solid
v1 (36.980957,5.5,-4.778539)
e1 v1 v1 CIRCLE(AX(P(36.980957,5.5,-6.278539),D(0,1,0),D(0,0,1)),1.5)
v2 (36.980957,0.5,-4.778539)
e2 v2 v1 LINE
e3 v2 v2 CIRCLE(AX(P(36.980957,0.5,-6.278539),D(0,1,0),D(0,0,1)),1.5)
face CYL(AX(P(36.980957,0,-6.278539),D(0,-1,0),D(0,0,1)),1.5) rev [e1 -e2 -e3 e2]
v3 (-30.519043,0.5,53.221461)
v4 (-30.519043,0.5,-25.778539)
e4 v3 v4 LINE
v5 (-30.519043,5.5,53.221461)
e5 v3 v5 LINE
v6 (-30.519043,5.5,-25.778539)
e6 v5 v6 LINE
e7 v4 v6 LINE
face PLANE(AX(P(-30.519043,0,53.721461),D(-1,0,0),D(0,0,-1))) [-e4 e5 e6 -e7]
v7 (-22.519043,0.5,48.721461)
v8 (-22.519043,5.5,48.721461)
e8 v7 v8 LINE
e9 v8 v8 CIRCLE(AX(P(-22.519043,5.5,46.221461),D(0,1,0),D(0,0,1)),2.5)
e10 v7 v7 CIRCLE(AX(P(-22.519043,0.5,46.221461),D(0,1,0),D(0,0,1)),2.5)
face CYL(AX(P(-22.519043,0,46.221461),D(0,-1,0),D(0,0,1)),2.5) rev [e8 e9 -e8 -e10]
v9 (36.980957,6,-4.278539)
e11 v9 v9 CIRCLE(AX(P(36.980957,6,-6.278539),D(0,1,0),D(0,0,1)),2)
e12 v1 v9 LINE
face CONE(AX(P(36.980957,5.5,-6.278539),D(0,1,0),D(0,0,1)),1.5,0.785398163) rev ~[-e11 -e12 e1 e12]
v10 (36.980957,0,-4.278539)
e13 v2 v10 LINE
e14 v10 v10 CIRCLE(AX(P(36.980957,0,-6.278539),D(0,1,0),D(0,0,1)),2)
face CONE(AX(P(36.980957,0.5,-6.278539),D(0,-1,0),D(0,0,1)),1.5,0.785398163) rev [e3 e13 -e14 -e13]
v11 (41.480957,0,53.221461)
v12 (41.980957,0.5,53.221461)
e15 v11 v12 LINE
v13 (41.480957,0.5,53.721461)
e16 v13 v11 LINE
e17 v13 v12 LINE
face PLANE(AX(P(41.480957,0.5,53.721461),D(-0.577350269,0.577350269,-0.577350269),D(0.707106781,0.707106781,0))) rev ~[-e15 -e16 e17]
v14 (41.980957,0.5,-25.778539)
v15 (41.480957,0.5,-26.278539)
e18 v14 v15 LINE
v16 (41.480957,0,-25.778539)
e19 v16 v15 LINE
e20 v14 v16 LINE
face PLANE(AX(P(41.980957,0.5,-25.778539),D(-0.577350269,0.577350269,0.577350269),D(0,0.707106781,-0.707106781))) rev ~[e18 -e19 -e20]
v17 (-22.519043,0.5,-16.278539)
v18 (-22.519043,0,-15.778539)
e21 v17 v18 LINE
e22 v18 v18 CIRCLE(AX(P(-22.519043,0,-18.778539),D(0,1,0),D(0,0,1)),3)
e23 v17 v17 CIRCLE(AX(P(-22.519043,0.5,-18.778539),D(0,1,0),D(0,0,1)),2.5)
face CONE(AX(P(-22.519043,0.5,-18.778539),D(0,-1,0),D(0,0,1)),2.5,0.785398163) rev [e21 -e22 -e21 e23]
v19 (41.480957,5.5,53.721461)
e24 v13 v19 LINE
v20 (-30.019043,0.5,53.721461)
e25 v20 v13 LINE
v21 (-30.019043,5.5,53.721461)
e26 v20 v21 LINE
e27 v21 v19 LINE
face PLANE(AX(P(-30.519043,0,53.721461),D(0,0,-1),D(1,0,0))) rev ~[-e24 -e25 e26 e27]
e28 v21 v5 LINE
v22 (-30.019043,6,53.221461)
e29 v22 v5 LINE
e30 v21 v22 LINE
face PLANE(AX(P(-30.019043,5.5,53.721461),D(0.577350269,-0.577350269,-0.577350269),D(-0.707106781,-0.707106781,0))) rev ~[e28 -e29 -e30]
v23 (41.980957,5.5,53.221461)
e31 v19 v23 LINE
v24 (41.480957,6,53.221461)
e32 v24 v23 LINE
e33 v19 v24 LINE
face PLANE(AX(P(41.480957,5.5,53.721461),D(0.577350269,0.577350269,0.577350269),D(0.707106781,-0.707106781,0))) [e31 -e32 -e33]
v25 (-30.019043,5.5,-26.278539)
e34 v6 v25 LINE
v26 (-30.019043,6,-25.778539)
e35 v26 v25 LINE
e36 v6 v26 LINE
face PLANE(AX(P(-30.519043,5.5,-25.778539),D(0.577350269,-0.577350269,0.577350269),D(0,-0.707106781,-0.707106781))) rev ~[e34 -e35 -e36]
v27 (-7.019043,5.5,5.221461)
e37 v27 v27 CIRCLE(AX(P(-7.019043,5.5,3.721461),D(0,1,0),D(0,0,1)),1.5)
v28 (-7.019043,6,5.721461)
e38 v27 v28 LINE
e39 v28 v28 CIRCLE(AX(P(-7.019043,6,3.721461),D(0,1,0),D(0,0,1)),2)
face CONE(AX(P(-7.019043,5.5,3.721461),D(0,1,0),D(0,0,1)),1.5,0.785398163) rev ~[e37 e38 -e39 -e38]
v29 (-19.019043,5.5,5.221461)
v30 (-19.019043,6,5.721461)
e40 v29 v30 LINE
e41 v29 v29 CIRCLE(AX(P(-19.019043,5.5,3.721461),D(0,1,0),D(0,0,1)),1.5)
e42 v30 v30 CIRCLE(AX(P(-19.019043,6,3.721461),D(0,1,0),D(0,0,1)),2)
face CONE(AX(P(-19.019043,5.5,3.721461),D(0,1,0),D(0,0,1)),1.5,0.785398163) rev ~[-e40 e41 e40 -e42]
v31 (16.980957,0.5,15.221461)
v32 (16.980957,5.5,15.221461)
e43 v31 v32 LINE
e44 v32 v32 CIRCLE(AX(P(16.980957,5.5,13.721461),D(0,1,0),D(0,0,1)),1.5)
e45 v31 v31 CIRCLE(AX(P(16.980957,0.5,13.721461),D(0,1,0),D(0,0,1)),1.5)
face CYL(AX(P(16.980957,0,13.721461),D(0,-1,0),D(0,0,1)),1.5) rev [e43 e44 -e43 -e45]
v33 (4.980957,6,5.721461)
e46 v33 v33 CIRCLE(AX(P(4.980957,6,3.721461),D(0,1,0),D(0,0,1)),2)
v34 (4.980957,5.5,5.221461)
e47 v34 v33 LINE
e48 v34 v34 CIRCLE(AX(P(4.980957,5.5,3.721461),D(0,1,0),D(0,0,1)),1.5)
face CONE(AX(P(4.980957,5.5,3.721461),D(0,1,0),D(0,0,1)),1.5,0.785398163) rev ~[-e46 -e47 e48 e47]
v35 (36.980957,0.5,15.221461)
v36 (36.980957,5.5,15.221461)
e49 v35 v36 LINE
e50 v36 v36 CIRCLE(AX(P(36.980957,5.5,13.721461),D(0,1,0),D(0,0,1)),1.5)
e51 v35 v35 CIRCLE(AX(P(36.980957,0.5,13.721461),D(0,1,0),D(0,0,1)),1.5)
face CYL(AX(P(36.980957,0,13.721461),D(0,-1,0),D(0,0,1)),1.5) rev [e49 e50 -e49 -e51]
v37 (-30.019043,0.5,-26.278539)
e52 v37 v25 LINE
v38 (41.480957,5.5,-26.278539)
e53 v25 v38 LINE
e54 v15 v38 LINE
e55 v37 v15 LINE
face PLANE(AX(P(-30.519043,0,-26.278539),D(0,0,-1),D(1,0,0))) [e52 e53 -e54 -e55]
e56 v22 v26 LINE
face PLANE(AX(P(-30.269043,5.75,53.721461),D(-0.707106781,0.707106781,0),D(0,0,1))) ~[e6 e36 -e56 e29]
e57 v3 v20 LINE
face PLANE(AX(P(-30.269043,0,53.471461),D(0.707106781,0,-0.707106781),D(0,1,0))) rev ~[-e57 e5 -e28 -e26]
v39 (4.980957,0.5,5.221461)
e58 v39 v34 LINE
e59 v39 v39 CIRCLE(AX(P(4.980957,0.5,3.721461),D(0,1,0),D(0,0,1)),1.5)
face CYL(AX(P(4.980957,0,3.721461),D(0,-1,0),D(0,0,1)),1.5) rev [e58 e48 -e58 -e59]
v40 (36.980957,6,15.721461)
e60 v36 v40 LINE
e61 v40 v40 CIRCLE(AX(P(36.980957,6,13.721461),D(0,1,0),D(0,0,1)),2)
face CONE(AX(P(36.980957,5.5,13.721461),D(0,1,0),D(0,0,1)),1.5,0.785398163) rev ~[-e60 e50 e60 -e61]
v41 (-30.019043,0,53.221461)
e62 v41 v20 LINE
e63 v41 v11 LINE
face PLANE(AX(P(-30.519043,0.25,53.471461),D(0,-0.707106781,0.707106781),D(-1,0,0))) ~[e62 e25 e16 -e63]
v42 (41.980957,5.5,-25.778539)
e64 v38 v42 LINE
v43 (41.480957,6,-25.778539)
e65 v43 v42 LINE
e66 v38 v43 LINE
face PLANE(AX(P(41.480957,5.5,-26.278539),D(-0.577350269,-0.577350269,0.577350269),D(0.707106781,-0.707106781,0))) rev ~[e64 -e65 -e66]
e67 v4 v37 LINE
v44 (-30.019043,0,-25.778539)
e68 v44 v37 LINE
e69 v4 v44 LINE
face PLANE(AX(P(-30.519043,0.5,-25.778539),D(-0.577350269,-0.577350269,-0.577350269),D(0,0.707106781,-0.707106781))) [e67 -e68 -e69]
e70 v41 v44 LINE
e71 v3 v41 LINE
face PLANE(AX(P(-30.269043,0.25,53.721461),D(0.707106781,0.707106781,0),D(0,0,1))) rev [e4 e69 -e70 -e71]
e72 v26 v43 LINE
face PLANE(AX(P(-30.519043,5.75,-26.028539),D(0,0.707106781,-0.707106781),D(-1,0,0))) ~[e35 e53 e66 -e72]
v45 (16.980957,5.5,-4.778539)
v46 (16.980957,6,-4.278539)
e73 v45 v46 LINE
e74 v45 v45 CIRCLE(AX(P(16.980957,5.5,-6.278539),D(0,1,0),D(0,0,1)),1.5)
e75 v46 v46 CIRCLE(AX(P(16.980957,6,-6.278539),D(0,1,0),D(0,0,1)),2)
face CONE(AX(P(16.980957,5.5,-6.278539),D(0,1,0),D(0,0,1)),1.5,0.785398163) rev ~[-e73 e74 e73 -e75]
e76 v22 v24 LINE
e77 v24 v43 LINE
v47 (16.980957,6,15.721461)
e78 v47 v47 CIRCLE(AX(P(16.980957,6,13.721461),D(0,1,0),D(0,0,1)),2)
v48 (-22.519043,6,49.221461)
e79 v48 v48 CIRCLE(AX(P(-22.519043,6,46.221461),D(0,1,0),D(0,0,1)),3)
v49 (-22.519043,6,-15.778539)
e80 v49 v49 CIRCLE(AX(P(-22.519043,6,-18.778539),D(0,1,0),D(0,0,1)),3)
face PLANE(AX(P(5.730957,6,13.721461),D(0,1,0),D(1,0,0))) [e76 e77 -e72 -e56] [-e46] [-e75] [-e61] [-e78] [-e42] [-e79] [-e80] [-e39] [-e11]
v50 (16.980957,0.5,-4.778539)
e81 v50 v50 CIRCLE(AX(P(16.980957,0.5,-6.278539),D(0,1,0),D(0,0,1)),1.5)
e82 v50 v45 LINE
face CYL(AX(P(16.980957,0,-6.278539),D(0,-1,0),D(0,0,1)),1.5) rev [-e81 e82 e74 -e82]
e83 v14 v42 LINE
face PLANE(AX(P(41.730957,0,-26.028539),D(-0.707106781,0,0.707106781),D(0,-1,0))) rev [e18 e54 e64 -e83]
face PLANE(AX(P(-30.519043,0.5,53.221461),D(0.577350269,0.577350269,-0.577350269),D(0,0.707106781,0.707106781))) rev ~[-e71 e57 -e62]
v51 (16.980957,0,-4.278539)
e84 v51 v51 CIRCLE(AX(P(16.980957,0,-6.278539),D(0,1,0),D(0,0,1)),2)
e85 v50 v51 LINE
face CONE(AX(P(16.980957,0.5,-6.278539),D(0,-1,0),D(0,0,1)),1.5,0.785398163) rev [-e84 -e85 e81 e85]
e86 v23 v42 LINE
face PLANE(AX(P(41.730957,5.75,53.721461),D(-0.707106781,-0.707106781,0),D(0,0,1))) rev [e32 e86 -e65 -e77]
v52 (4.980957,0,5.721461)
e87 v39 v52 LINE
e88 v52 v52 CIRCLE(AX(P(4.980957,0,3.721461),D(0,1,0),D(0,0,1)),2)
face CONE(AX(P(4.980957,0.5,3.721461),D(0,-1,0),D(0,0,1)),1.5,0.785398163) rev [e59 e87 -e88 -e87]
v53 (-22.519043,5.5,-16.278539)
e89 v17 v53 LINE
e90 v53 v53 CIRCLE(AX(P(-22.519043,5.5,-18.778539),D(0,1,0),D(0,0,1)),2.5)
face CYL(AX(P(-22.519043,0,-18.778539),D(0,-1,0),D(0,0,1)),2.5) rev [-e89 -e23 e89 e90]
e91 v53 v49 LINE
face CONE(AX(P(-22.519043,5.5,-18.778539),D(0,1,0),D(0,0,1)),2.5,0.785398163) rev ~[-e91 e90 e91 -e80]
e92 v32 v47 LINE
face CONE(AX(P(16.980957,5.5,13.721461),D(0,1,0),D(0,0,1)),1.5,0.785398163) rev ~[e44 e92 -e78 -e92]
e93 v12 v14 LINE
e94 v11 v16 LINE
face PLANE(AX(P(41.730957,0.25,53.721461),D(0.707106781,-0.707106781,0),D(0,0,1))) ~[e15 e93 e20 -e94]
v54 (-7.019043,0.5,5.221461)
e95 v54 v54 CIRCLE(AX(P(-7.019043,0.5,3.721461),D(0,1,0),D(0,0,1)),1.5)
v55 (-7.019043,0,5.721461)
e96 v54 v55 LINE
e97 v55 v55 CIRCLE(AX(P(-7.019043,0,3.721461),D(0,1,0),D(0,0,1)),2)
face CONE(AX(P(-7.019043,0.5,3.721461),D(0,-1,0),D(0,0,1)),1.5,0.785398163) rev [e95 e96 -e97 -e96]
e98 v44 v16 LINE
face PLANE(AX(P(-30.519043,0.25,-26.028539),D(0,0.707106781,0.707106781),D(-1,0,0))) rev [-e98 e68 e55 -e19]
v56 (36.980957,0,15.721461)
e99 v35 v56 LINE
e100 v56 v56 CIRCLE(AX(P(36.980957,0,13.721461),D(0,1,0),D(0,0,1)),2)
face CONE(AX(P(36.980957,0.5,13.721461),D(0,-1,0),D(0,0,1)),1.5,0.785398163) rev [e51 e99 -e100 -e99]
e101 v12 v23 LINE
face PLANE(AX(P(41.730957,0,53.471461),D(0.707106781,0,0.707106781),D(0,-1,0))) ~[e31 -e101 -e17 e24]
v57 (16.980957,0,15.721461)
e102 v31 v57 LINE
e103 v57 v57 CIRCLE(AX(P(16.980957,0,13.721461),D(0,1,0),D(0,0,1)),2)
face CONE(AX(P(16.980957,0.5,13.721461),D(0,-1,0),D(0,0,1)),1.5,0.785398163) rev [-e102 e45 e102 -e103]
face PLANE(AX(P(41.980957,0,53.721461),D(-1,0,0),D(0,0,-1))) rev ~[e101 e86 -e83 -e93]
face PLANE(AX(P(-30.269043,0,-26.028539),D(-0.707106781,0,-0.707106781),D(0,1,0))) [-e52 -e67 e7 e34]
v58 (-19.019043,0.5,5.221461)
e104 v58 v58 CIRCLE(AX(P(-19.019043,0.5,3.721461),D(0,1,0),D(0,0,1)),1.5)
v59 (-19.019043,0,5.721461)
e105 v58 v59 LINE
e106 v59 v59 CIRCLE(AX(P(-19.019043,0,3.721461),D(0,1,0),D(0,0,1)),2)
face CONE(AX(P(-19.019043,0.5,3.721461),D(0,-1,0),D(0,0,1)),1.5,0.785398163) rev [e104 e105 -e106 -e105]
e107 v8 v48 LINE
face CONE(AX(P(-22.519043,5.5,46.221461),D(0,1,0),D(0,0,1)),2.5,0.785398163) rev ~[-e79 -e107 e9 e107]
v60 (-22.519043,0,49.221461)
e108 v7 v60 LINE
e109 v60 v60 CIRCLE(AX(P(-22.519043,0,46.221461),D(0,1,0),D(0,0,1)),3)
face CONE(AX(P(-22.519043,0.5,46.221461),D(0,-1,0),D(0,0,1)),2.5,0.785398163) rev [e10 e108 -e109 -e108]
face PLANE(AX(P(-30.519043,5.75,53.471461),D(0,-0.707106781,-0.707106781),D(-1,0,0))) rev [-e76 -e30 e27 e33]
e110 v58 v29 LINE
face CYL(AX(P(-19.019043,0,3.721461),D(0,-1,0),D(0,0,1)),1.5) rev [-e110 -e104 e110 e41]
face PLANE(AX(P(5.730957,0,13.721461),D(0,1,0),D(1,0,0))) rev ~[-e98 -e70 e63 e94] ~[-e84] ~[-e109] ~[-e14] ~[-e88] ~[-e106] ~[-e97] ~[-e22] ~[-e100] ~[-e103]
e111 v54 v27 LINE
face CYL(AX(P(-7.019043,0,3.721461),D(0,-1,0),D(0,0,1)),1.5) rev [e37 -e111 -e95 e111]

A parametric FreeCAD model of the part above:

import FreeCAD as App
import Part
import Sketcher

V = App.Vector
Q = App.Units.Quantity


def add_polygon(sketch, points):
    """Adds a closed chain of lines whose ends are joined by coincident constraints."""
    first, n = sketch.GeometryCount, len(points)
    for a, b in zip(points, points[1:] + points[:1]):
        sketch.addGeometry(Part.LineSegment(App.Vector(*a, 0), App.Vector(*b, 0)), False)
    for i in range(n):
        sketch.addConstraint(Sketcher.Constraint("Coincident", first + i, 2, first + (i + 1) % n, 1))

doc = App.newDocument("Part")
body = doc.addObject("PartDesign::Body", "Body")

# Sketch on XZ plane
sketch1 = body.newObject("Sketcher::SketchObject", "Sketch")
sketch1.AttachmentSupport = (doc.getObject("XZ_Plane"), [""])
sketch1.MapMode = "FlatFace"
add_polygon(sketch1, [(-30.519043, -26.278539), (-30.519043, 53.721461), (41.980957, 53.721461), (41.980957, -26.278539)])  # lines 0-3
sketch1.addGeometry(Part.Circle(V(-22.519043, 46.221461, 0), V(0, 0, 1), 2.5), False)  # 4
sketch1.addGeometry(Part.Circle(V(-19.019043, 3.721461, 0), V(0, 0, 1), 1.5), False)  # 5
sketch1.addGeometry(Part.Circle(V(-7.019043, 3.721461, 0), V(0, 0, 1), 1.5), False)  # 6
sketch1.addGeometry(Part.Circle(V(4.980957, 3.721461, 0), V(0, 0, 1), 1.5), False)  # 7
sketch1.addGeometry(Part.Circle(V(-22.519043, -18.778539, 0), V(0, 0, 1), 2.5), False)  # 8
sketch1.addGeometry(Part.Circle(V(16.980957, 13.721461, 0), V(0, 0, 1), 1.5), False)  # 9
sketch1.addGeometry(Part.Circle(V(36.980957, 13.721461, 0), V(0, 0, 1), 1.5), False)  # 10
sketch1.addGeometry(Part.Circle(V(16.980957, -6.278539, 0), V(0, 0, 1), 1.5), False)  # 11
sketch1.addGeometry(Part.Circle(V(36.980957, -6.278539, 0), V(0, 0, 1), 1.5), False)  # 12
sketch1.addConstraint([
    Sketcher.Constraint("Vertical", 0),
    Sketcher.Constraint("Horizontal", 1),
    Sketcher.Constraint("Vertical", 2),
    Sketcher.Constraint("Horizontal", 3),
    Sketcher.Constraint("Equal", 5, 6),
    Sketcher.Constraint("Equal", 6, 7),
    Sketcher.Constraint("Equal", 4, 8),
    Sketcher.Constraint("Equal", 7, 9),
    Sketcher.Constraint("Equal", 9, 10),
    Sketcher.Constraint("Equal", 10, 11),
    Sketcher.Constraint("Equal", 11, 12),
    Sketcher.Constraint("Horizontal", 5, 3, 6, 3),
    Sketcher.Constraint("Horizontal", 6, 3, 7, 3),
    Sketcher.Constraint("Horizontal", 9, 3, 10, 3),
    Sketcher.Constraint("Horizontal", 11, 3, 12, 3),
    Sketcher.Constraint("Vertical", 4, 3, 8, 3),
    Sketcher.Constraint("Vertical", 9, 3, 11, 3),
    Sketcher.Constraint("Vertical", 10, 3, 12, 3),
    Sketcher.Constraint("Diameter", 4, Q("5 mm")),
    Sketcher.Constraint("Diameter", 5, Q("3 mm")),
    Sketcher.Constraint("DistanceY", 0, 1, 0, 2, Q("80 mm")),
    Sketcher.Constraint("DistanceX", 1, 1, 1, 2, Q("72.5 mm")),
    Sketcher.Constraint("DistanceX", 5, 3, 6, 3, Q("12 mm")),
    Sketcher.Constraint("DistanceX", 6, 3, 7, 3, Q("12 mm")),
    Sketcher.Constraint("DistanceY", 8, 3, 4, 3, Q("65 mm")),
    Sketcher.Constraint("DistanceX", 7, 3, 9, 3, Q("12 mm")),
    Sketcher.Constraint("DistanceY", 7, 3, 9, 3, Q("10 mm")),
    Sketcher.Constraint("DistanceX", 9, 3, 10, 3, Q("20 mm")),
    Sketcher.Constraint("DistanceY", 11, 3, 7, 3, Q("10 mm")),
    Sketcher.Constraint("DistanceX", 0, 2, 4, 3, Q("8 mm")),
    Sketcher.Constraint("DistanceY", 5, 3, 0, 2, Q("50 mm")),
    Sketcher.Constraint("DistanceX", 10, 3, 1, 2, Q("5 mm")),
    Sketcher.Constraint("DistanceY", 5, 3, 4, 3, Q("42.5 mm")),
    Sketcher.Constraint("DistanceY", -1, 1, 4, 3, Q("46.221461 mm")),
    Sketcher.Constraint("DistanceX", 4, 3, -1, 1, Q("22.519043 mm")),
])
pad1 = body.newObject("PartDesign::Pad", "Pad")
pad1.Profile = sketch1
pad1.Length = 6
pad1.Reversed = True
doc.recompute()

chamfer = body.newObject("PartDesign::Chamfer", "Chamfer")
chamfer.Base = (pad1, ["Edge1"])
chamfer.UseAllEdges = True
chamfer.Size = 0.5

doc.recompute()
